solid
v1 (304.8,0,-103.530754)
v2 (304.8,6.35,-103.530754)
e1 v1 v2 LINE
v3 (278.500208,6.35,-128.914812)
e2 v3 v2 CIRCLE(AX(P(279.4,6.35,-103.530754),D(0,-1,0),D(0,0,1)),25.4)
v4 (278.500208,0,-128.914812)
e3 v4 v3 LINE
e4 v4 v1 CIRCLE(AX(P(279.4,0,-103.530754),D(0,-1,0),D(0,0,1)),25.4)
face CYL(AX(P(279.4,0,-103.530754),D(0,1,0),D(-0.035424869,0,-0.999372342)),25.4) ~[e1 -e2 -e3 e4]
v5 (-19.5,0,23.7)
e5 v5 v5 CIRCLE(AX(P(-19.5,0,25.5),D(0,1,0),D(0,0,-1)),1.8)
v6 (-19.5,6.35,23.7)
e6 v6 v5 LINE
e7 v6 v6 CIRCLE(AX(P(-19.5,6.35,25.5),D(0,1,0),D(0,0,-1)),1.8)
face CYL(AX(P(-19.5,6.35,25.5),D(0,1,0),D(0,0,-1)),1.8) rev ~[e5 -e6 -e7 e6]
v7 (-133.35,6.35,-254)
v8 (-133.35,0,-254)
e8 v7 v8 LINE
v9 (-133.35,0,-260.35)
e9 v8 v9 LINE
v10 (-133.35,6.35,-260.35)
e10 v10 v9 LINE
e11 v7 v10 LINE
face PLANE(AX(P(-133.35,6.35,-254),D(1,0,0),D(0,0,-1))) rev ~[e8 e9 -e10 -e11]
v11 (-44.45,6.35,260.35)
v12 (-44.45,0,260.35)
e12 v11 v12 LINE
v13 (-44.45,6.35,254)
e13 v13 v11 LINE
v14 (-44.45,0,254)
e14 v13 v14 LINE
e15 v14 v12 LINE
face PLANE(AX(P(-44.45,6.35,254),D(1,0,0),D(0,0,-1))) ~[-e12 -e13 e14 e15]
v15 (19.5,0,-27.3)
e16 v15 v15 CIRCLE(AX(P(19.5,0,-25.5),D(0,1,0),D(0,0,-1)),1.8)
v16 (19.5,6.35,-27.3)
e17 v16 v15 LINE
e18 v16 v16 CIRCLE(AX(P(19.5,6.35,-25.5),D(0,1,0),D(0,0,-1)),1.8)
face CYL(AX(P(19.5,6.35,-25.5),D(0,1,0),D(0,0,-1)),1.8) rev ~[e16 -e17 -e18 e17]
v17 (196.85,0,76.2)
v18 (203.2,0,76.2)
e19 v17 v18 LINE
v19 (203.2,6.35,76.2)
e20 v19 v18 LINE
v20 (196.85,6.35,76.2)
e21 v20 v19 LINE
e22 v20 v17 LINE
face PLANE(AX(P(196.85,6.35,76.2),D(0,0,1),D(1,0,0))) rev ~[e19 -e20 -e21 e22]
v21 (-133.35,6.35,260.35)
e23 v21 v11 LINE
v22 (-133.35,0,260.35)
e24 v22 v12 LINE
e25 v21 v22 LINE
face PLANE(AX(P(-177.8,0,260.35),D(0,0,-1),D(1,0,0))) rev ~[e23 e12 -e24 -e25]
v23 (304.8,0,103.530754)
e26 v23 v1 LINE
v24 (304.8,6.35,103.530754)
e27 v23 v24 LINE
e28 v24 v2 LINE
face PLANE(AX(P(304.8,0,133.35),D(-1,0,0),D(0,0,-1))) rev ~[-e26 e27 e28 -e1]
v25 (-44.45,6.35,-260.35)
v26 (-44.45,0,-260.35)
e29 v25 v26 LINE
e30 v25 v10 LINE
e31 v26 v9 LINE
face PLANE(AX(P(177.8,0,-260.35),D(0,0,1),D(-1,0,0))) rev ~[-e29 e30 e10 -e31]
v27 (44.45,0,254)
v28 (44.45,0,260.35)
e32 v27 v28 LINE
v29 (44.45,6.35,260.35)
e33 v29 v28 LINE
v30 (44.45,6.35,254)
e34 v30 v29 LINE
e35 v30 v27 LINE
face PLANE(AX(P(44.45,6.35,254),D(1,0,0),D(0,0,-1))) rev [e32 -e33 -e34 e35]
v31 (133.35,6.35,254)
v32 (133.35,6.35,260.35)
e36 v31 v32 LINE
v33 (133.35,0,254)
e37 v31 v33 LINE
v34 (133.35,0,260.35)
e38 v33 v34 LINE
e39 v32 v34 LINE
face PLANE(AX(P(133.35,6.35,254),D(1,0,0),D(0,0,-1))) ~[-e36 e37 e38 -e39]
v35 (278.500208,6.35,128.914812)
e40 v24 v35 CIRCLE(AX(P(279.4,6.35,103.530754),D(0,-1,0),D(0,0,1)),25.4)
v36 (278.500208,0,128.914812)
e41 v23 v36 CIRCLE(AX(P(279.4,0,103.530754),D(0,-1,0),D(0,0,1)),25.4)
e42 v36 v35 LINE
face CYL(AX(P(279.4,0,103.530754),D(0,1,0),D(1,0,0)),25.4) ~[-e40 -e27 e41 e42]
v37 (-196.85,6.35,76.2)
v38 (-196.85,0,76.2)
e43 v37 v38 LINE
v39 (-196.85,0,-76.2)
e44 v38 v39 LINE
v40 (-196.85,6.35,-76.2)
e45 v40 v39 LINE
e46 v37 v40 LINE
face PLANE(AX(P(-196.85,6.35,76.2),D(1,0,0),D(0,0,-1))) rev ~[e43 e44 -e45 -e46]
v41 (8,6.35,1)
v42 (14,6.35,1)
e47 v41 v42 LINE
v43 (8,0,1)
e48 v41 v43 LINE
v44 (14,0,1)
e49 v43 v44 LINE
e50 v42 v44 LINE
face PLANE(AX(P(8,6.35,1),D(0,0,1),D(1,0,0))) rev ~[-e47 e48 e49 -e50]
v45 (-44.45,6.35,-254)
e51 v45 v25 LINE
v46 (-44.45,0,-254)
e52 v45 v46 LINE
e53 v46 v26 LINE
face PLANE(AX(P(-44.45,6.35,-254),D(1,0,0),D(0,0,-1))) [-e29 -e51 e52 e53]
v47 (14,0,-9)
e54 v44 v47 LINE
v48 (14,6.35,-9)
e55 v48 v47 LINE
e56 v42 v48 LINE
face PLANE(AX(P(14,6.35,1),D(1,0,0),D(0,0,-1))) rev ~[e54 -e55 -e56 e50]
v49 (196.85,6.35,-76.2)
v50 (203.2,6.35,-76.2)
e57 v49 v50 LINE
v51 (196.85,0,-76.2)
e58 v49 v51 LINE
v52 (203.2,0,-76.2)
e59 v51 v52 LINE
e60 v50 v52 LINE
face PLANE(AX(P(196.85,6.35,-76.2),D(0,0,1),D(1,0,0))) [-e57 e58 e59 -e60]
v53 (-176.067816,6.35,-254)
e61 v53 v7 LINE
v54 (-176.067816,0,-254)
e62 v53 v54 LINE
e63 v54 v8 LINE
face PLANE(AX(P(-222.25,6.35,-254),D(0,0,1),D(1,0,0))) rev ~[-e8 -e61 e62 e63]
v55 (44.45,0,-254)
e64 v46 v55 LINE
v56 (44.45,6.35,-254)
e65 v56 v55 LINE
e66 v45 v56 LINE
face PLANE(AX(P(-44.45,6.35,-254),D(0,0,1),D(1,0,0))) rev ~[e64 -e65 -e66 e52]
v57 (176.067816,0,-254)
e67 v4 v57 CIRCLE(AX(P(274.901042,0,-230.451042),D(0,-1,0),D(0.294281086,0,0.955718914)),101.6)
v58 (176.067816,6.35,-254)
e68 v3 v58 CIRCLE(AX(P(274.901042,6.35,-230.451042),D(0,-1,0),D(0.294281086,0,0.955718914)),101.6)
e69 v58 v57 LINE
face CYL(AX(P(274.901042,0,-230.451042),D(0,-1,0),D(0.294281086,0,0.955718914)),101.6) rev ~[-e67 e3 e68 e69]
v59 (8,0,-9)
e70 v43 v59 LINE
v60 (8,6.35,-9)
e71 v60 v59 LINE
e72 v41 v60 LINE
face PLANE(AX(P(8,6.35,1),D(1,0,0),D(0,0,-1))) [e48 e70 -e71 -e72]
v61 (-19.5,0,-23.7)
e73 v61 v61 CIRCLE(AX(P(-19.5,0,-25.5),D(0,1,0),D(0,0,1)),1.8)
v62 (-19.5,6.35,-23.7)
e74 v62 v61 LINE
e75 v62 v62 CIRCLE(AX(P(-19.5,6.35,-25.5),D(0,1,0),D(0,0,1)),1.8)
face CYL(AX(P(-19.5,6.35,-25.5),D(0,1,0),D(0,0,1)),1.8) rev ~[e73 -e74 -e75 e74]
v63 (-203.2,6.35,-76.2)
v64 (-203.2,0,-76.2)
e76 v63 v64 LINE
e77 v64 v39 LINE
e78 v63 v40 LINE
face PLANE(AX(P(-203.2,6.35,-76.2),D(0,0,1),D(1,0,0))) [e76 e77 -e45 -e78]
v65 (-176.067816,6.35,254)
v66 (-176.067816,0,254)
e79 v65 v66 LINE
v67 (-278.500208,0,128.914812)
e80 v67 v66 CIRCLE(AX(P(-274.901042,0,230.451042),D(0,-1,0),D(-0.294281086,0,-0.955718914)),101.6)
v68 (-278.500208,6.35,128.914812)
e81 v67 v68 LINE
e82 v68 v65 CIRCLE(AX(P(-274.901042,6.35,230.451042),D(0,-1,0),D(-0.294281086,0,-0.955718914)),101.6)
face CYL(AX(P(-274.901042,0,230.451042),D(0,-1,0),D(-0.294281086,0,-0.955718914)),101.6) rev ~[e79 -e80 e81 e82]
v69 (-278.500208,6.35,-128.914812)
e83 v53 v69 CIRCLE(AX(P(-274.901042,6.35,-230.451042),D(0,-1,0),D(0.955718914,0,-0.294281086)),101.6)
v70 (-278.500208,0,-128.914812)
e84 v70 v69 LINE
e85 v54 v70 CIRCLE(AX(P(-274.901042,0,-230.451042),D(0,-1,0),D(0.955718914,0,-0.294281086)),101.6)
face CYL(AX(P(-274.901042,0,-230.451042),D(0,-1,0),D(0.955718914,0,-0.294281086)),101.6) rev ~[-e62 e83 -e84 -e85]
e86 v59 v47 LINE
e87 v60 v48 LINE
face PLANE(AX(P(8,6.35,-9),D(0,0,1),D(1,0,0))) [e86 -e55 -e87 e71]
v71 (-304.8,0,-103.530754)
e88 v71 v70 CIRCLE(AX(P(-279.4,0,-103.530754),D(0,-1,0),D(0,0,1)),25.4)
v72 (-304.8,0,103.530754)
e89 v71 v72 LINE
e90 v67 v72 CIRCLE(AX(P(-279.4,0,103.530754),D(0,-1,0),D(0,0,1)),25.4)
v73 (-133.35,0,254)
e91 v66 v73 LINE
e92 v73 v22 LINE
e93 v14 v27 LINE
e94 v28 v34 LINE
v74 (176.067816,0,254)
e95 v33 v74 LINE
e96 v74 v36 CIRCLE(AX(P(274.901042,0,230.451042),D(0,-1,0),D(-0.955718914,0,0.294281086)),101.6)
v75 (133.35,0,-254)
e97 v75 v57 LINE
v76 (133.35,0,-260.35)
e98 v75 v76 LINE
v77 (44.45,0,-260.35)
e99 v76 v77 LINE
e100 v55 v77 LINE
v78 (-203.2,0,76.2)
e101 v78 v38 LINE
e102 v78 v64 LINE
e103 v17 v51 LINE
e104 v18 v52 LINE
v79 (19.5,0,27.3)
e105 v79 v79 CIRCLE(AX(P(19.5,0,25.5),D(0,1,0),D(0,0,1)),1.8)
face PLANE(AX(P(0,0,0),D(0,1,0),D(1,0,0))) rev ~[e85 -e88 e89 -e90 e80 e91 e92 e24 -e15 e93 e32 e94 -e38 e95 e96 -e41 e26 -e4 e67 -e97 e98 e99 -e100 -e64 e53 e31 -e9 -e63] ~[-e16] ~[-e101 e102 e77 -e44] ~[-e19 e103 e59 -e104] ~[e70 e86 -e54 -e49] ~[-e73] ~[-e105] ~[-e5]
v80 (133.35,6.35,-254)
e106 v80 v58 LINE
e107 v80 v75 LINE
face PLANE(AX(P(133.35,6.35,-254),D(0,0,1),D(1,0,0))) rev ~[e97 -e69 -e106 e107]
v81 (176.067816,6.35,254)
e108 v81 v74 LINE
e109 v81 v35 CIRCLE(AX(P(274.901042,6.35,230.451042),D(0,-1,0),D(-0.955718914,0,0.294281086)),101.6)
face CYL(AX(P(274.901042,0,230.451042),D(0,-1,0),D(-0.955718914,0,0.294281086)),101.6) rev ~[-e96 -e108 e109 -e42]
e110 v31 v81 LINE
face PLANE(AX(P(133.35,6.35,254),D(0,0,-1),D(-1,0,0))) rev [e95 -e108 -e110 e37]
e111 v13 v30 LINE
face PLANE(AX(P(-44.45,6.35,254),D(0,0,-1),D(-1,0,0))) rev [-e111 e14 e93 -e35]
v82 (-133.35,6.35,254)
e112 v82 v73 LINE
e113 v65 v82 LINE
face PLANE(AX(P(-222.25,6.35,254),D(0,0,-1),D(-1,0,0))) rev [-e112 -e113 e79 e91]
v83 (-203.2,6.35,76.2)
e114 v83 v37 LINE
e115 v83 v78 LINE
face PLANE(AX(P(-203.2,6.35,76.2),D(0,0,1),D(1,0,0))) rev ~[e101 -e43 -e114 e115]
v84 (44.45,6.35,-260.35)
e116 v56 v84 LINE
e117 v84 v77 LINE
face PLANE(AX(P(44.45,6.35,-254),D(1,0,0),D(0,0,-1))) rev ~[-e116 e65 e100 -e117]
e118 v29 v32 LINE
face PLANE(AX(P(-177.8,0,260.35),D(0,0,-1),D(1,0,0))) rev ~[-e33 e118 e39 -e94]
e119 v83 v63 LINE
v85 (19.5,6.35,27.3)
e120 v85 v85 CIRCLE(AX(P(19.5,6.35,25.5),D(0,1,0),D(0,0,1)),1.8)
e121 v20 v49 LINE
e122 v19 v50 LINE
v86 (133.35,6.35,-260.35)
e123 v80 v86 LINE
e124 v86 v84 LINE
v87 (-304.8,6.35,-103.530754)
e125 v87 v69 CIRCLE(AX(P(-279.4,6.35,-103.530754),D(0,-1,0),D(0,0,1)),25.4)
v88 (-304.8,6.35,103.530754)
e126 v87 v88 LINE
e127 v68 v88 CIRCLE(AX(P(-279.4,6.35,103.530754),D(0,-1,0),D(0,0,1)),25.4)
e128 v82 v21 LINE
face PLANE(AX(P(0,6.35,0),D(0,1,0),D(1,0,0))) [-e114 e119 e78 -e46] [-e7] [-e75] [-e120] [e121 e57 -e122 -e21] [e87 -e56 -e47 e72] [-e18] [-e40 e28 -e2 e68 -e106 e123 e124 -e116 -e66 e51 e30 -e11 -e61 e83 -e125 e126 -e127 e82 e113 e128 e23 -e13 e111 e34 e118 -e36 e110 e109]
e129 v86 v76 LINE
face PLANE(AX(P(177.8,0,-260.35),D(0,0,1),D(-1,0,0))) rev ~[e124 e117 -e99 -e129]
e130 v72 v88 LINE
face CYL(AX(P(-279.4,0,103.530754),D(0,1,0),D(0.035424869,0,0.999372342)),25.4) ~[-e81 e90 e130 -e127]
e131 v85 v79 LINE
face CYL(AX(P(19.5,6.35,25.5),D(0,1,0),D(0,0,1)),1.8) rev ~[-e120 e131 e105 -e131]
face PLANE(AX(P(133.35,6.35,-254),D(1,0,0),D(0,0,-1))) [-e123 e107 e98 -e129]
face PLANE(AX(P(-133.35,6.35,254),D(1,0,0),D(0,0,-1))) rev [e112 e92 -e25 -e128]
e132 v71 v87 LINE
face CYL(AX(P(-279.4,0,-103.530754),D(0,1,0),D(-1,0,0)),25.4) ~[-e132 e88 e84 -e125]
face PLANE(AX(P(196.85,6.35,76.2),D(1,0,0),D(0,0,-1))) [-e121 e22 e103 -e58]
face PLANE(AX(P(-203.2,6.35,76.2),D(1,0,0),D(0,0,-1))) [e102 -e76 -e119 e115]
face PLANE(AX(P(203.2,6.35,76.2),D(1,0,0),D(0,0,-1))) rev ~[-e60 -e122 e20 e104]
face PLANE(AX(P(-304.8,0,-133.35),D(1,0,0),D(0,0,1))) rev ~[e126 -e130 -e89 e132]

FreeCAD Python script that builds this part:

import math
import FreeCAD as App
import Part
import Sketcher
Q = App.Units.Quantity


def edges_at(feature, points):
    """Names of the edges that pass closest to the given points."""
    edges = feature.Shape.Edges
    near = lambda p: min(range(len(edges)), key=lambda i: edges[i].distToShape(Part.Vertex(*p))[0])
    return sorted({f"Edge{near(p) + 1}" for p in points})


def add_polygon(sketch, points):
    """Adds a closed chain of lines whose ends are joined by coincident constraints."""
    first, n = sketch.GeometryCount, len(points)
    for a, b in zip(points, points[1:] + points[:1]):
        sketch.addGeometry(Part.LineSegment(App.Vector(*a, 0), App.Vector(*b, 0)), False)
    for i in range(n):
        sketch.addConstraint(Sketcher.Constraint("Coincident", first + i, 2, first + (i + 1) % n, 1))

doc = App.newDocument("Part")
body = doc.addObject("PartDesign::Body", "Body")

# Sketch on XZ plane
sketch1 = doc.addObject("Sketcher::SketchObject", "Sketch")
body.addObject(sketch1)
sketch1.AttachmentSupport = (doc.XZ_Plane, [""])
sketch1.MapMode = "FlatFace"
sketch1.addGeometry(Part.ArcOfCircle(Part.Circle(App.Vector(-275, 230, 0), App.Vector(0, 0, 1), 102), math.radians(-107), math.radians(17)), False)
sketch1.addGeometry(Part.LineSegment(App.Vector(-178, 260, 0), App.Vector(178, 260, 0)), False)
sketch1.addGeometry(Part.ArcOfCircle(Part.Circle(App.Vector(275, 230, 0), App.Vector(0, 0, 1), 102), math.radians(163), math.radians(287)), False)
sketch1.addGeometry(Part.LineSegment(App.Vector(305, 133, 0), App.Vector(305, -133, 0)), False)
sketch1.addGeometry(Part.ArcOfCircle(Part.Circle(App.Vector(275, -230, 0), App.Vector(0, 0, 1), 102), math.radians(73), math.radians(197)), False)
sketch1.addGeometry(Part.LineSegment(App.Vector(178, -260, 0), App.Vector(-178, -260, 0)), False)
sketch1.addGeometry(Part.ArcOfCircle(Part.Circle(App.Vector(-275, -230, 0), App.Vector(0, 0, 1), 102), math.radians(-17), math.radians(107)), False)
sketch1.addGeometry(Part.LineSegment(App.Vector(-305, -133, 0), App.Vector(-305, 133, 0)), False)
sketch1.addConstraint(Sketcher.Constraint("Coincident", 0, 2, 1, 1))
sketch1.addConstraint(Sketcher.Constraint("Coincident", 1, 2, 2, 1))
sketch1.addConstraint(Sketcher.Constraint("Coincident", 2, 2, 3, 1))
sketch1.addConstraint(Sketcher.Constraint("Coincident", 3, 2, 4, 1))
sketch1.addConstraint(Sketcher.Constraint("Coincident", 4, 2, 5, 1))
sketch1.addConstraint(Sketcher.Constraint("Coincident", 5, 2, 6, 1))
sketch1.addConstraint(Sketcher.Constraint("Coincident", 6, 2, 7, 1))
sketch1.addConstraint(Sketcher.Constraint("Coincident", 7, 2, 0, 1))
sketch1.addConstraint(Sketcher.Constraint("Horizontal", 1))
sketch1.addConstraint(Sketcher.Constraint("Vertical", 3))
sketch1.addConstraint(Sketcher.Constraint("Horizontal", 5))
sketch1.addConstraint(Sketcher.Constraint("Vertical", 7))
sketch1.addConstraint(Sketcher.Constraint("Equal", 0, 2))
sketch1.addConstraint(Sketcher.Constraint("Equal", 2, 4))
sketch1.addConstraint(Sketcher.Constraint("Equal", 4, 6))
sketch1.addConstraint(Sketcher.Constraint("Symmetric", 0, 3, 4, 3, -1, 1))
sketch1.addConstraint(Sketcher.Constraint("Symmetric", 2, 3, 6, 3, -1, 1))
sketch1.addConstraint(Sketcher.Constraint("Symmetric", 0, 3, 2, 3, -2))
sketch1.addConstraint(Sketcher.Constraint("Horizontal", 3, 2, 6, 2))
sketch1.addConstraint(Sketcher.Constraint("Vertical", 1, 2, 4, 2))
sketch1.addConstraint(Sketcher.Constraint("Radius", 0, Q("4 in")))
sketch1.addConstraint(Sketcher.Constraint("DistanceX", 1, 1, 1, 2, Q("14 in")))
sketch1.addConstraint(Sketcher.Constraint("DistanceY", 3, 2, 3, 1, Q("10.5 in")))
sketch1.addConstraint(Sketcher.Constraint("DistanceX", -1, 1, 2, 2, Q("12 in")))
sketch1.addConstraint(Sketcher.Constraint("DistanceY", 2, 2, 1, 2, Q("5 in")))
pad1 = doc.addObject("PartDesign::Pad", "Pad")
body.addObject(pad1)
pad1.Profile = sketch1
pad1.Length = Q("0.25 in")
pad1.Reversed = True

# Sketch on XZ plane
sketch2 = doc.addObject("Sketcher::SketchObject", "Sketch001")
body.addObject(sketch2)
sketch2.AttachmentSupport = (doc.XZ_Plane, [""])
sketch2.MapMode = "FlatFace"
sketch2.AttachmentOffset = App.Placement(App.Vector(0, 0, -0.25 * 25.4), App.Rotation())
add_polygon(sketch2, [(-222, -260), (-222, -254), (-133, -254), (-133, -260)])  # lines 0-3
add_polygon(sketch2, [(-44, -260), (-44, -254), (44, -254), (44, -260)])  # lines 4-7
add_polygon(sketch2, [(133, -260), (133, -254), (222, -254), (222, -260)])  # lines 8-11
sketch2.addConstraint(Sketcher.Constraint("Vertical", 0))
sketch2.addConstraint(Sketcher.Constraint("Horizontal", 1))
sketch2.addConstraint(Sketcher.Constraint("Vertical", 2))
sketch2.addConstraint(Sketcher.Constraint("Horizontal", 3))
sketch2.addConstraint(Sketcher.Constraint("Vertical", 4))
sketch2.addConstraint(Sketcher.Constraint("Horizontal", 5))
sketch2.addConstraint(Sketcher.Constraint("Vertical", 6))
sketch2.addConstraint(Sketcher.Constraint("Horizontal", 7))
sketch2.addConstraint(Sketcher.Constraint("Vertical", 8))
sketch2.addConstraint(Sketcher.Constraint("Horizontal", 9))
sketch2.addConstraint(Sketcher.Constraint("Vertical", 10))
sketch2.addConstraint(Sketcher.Constraint("Horizontal", 11))
sketch2.addConstraint(Sketcher.Constraint("Symmetric", 1, 2, 8, 2, -2))
sketch2.addConstraint(Sketcher.Constraint("Symmetric", 3, 2, 10, 2, -2))
sketch2.addConstraint(Sketcher.Constraint("Horizontal", 1, 2, 4, 2))
sketch2.addConstraint(Sketcher.Constraint("Horizontal", 3, 2, 6, 2))
sketch2.addConstraint(Sketcher.Constraint("Equal", 3, 5))
sketch2.addConstraint(Sketcher.Constraint("DistanceX", 1, 1, 1, 2, Q("3.5 in")))
sketch2.addConstraint(Sketcher.Constraint("DistanceY", 0, 2, -1, 1, Q("10 in")))
sketch2.addConstraint(Sketcher.Constraint("DistanceX", 0, 2, 4, 2, Q("7 in")))
sketch2.addConstraint(Sketcher.Constraint("DistanceX", 4, 2, 8, 2, Q("7 in")))
sketch2.addConstraint(Sketcher.Constraint("DistanceY", 0, 1, 0, 2, Q("0.25 in")))
pocket1 = doc.addObject("PartDesign::Pocket", "Pocket")
body.addObject(pocket1)
pocket1.Profile = sketch2
pocket1.Type = "ThroughAll"
pocket1.Reversed = True
doc.recompute()

mirrored = doc.addObject("PartDesign::Mirrored", "Mirrored")
body.addObject(mirrored)
mirrored.Originals = [pocket1]
mirrored.MirrorPlane = (doc.XY_Plane, [""])
body.Tip = mirrored
doc.recompute()

fillet = doc.addObject("PartDesign::Fillet", "Fillet")
body.addObject(fillet)
fillet.Base = (mirrored, edges_at(mirrored, [
    (-304.8, 3.175, 133.35),
    (-304.8, 3.175, -133.35),
    (304.8, 3.175, -133.35),
    (304.8, 3.175, 133.35),
]))
fillet.Radius = Q("1 in")

# Sketch on XZ plane
sketch3 = doc.addObject("Sketcher::SketchObject", "Sketch002")
body.addObject(sketch3)
sketch3.AttachmentSupport = (doc.XZ_Plane, [""])
sketch3.MapMode = "FlatFace"
sketch3.AttachmentOffset = App.Placement(App.Vector(0, 0, -0.25 * 25.4), App.Rotation())
add_polygon(sketch3, [(-203, -76), (-203, 76), (-197, 76), (-197, -76)])  # lines 0-3
add_polygon(sketch3, [(197, -76), (197, 76), (203, 76), (203, -76)])  # lines 4-7
sketch3.addConstraint(Sketcher.Constraint("Vertical", 0))
sketch3.addConstraint(Sketcher.Constraint("Horizontal", 1))
sketch3.addConstraint(Sketcher.Constraint("Vertical", 2))
sketch3.addConstraint(Sketcher.Constraint("Horizontal", 3))
sketch3.addConstraint(Sketcher.Constraint("Vertical", 4))
sketch3.addConstraint(Sketcher.Constraint("Horizontal", 5))
sketch3.addConstraint(Sketcher.Constraint("Vertical", 6))
sketch3.addConstraint(Sketcher.Constraint("Horizontal", 7))
sketch3.addConstraint(Sketcher.Constraint("Symmetric", 2, 2, 4, 2, -1, 1))
sketch3.addConstraint(Sketcher.Constraint("Symmetric", 0, 2, 6, 2, -1, 1))
sketch3.addConstraint(Sketcher.Constraint("Horizontal", 1, 2, 4, 2))
sketch3.addConstraint(Sketcher.Constraint("DistanceY", 0, 1, 0, 2, Q("6 in")))
sketch3.addConstraint(Sketcher.Constraint("DistanceX", 0, 2, -1, 1, Q("8 in")))
sketch3.addConstraint(Sketcher.Constraint("DistanceX", 1, 1, 1, 2, Q("0.25 in")))
pocket2 = doc.addObject("PartDesign::Pocket", "Pocket001")
body.addObject(pocket2)
pocket2.Profile = sketch3
pocket2.Type = "ThroughAll"
pocket2.Reversed = True

# Sketch on XZ plane
sketch4 = doc.addObject("Sketcher::SketchObject", "Sketch003")
body.addObject(sketch4)
sketch4.AttachmentSupport = (doc.XZ_Plane, [""])
sketch4.MapMode = "FlatFace"
sketch4.AttachmentOffset = App.Placement(App.Vector(0, 0, -0.25 * 25.4), App.Rotation())
add_polygon(sketch4, [(8, -9), (8, 1), (14, 1), (14, -9)])  # lines 0-3
sketch4.addGeometry(Part.Circle(App.Vector(-19.5, -25.5, 0), App.Vector(0, 0, 1), 1.8), False)  # 4
sketch4.addGeometry(Part.Circle(App.Vector(-19.5, 25.5, 0), App.Vector(0, 0, 1), 1.8), False)  # 5
sketch4.addGeometry(Part.Circle(App.Vector(19.5, 25.5, 0), App.Vector(0, 0, 1), 1.8), False)  # 6
sketch4.addGeometry(Part.Circle(App.Vector(19.5, -25.5, 0), App.Vector(0, 0, 1), 1.8), False)  # 7
sketch4.addConstraint(Sketcher.Constraint("Vertical", 0))
sketch4.addConstraint(Sketcher.Constraint("Horizontal", 1))
sketch4.addConstraint(Sketcher.Constraint("Vertical", 2))
sketch4.addConstraint(Sketcher.Constraint("Horizontal", 3))
sketch4.addConstraint(Sketcher.Constraint("Equal", 4, 5))
sketch4.addConstraint(Sketcher.Constraint("Equal", 5, 6))
sketch4.addConstraint(Sketcher.Constraint("Equal", 6, 7))
sketch4.addConstraint(Sketcher.Constraint("Symmetric", 4, 3, 6, 3, -1, 1))
sketch4.addConstraint(Sketcher.Constraint("Symmetric", 5, 3, 7, 3, -1, 1))
sketch4.addConstraint(Sketcher.Constraint("Symmetric", 5, 3, 6, 3, -2))
sketch4.addConstraint(Sketcher.Constraint("Diameter", 4, 3.6))
sketch4.addConstraint(Sketcher.Constraint("DistanceX", 1, 1, 1, 2, 6.0))
sketch4.addConstraint(Sketcher.Constraint("DistanceY", 0, 1, 0, 2, 10.0))
sketch4.addConstraint(Sketcher.Constraint("DistanceX", 4, 3, -1, 1, 19.5))
sketch4.addConstraint(Sketcher.Constraint("DistanceY", 4, 3, -1, 1, 25.5))
sketch4.addConstraint(Sketcher.Constraint("DistanceX", -1, 1, 0, 2, 8.0))
sketch4.addConstraint(Sketcher.Constraint("DistanceY", -1, 1, 0, 2, 1.0))
pocket3 = doc.addObject("PartDesign::Pocket", "Pocket002")
body.addObject(pocket3)
pocket3.Profile = sketch4
pocket3.Type = "ThroughAll"
pocket3.Reversed = True

doc.recompute()
